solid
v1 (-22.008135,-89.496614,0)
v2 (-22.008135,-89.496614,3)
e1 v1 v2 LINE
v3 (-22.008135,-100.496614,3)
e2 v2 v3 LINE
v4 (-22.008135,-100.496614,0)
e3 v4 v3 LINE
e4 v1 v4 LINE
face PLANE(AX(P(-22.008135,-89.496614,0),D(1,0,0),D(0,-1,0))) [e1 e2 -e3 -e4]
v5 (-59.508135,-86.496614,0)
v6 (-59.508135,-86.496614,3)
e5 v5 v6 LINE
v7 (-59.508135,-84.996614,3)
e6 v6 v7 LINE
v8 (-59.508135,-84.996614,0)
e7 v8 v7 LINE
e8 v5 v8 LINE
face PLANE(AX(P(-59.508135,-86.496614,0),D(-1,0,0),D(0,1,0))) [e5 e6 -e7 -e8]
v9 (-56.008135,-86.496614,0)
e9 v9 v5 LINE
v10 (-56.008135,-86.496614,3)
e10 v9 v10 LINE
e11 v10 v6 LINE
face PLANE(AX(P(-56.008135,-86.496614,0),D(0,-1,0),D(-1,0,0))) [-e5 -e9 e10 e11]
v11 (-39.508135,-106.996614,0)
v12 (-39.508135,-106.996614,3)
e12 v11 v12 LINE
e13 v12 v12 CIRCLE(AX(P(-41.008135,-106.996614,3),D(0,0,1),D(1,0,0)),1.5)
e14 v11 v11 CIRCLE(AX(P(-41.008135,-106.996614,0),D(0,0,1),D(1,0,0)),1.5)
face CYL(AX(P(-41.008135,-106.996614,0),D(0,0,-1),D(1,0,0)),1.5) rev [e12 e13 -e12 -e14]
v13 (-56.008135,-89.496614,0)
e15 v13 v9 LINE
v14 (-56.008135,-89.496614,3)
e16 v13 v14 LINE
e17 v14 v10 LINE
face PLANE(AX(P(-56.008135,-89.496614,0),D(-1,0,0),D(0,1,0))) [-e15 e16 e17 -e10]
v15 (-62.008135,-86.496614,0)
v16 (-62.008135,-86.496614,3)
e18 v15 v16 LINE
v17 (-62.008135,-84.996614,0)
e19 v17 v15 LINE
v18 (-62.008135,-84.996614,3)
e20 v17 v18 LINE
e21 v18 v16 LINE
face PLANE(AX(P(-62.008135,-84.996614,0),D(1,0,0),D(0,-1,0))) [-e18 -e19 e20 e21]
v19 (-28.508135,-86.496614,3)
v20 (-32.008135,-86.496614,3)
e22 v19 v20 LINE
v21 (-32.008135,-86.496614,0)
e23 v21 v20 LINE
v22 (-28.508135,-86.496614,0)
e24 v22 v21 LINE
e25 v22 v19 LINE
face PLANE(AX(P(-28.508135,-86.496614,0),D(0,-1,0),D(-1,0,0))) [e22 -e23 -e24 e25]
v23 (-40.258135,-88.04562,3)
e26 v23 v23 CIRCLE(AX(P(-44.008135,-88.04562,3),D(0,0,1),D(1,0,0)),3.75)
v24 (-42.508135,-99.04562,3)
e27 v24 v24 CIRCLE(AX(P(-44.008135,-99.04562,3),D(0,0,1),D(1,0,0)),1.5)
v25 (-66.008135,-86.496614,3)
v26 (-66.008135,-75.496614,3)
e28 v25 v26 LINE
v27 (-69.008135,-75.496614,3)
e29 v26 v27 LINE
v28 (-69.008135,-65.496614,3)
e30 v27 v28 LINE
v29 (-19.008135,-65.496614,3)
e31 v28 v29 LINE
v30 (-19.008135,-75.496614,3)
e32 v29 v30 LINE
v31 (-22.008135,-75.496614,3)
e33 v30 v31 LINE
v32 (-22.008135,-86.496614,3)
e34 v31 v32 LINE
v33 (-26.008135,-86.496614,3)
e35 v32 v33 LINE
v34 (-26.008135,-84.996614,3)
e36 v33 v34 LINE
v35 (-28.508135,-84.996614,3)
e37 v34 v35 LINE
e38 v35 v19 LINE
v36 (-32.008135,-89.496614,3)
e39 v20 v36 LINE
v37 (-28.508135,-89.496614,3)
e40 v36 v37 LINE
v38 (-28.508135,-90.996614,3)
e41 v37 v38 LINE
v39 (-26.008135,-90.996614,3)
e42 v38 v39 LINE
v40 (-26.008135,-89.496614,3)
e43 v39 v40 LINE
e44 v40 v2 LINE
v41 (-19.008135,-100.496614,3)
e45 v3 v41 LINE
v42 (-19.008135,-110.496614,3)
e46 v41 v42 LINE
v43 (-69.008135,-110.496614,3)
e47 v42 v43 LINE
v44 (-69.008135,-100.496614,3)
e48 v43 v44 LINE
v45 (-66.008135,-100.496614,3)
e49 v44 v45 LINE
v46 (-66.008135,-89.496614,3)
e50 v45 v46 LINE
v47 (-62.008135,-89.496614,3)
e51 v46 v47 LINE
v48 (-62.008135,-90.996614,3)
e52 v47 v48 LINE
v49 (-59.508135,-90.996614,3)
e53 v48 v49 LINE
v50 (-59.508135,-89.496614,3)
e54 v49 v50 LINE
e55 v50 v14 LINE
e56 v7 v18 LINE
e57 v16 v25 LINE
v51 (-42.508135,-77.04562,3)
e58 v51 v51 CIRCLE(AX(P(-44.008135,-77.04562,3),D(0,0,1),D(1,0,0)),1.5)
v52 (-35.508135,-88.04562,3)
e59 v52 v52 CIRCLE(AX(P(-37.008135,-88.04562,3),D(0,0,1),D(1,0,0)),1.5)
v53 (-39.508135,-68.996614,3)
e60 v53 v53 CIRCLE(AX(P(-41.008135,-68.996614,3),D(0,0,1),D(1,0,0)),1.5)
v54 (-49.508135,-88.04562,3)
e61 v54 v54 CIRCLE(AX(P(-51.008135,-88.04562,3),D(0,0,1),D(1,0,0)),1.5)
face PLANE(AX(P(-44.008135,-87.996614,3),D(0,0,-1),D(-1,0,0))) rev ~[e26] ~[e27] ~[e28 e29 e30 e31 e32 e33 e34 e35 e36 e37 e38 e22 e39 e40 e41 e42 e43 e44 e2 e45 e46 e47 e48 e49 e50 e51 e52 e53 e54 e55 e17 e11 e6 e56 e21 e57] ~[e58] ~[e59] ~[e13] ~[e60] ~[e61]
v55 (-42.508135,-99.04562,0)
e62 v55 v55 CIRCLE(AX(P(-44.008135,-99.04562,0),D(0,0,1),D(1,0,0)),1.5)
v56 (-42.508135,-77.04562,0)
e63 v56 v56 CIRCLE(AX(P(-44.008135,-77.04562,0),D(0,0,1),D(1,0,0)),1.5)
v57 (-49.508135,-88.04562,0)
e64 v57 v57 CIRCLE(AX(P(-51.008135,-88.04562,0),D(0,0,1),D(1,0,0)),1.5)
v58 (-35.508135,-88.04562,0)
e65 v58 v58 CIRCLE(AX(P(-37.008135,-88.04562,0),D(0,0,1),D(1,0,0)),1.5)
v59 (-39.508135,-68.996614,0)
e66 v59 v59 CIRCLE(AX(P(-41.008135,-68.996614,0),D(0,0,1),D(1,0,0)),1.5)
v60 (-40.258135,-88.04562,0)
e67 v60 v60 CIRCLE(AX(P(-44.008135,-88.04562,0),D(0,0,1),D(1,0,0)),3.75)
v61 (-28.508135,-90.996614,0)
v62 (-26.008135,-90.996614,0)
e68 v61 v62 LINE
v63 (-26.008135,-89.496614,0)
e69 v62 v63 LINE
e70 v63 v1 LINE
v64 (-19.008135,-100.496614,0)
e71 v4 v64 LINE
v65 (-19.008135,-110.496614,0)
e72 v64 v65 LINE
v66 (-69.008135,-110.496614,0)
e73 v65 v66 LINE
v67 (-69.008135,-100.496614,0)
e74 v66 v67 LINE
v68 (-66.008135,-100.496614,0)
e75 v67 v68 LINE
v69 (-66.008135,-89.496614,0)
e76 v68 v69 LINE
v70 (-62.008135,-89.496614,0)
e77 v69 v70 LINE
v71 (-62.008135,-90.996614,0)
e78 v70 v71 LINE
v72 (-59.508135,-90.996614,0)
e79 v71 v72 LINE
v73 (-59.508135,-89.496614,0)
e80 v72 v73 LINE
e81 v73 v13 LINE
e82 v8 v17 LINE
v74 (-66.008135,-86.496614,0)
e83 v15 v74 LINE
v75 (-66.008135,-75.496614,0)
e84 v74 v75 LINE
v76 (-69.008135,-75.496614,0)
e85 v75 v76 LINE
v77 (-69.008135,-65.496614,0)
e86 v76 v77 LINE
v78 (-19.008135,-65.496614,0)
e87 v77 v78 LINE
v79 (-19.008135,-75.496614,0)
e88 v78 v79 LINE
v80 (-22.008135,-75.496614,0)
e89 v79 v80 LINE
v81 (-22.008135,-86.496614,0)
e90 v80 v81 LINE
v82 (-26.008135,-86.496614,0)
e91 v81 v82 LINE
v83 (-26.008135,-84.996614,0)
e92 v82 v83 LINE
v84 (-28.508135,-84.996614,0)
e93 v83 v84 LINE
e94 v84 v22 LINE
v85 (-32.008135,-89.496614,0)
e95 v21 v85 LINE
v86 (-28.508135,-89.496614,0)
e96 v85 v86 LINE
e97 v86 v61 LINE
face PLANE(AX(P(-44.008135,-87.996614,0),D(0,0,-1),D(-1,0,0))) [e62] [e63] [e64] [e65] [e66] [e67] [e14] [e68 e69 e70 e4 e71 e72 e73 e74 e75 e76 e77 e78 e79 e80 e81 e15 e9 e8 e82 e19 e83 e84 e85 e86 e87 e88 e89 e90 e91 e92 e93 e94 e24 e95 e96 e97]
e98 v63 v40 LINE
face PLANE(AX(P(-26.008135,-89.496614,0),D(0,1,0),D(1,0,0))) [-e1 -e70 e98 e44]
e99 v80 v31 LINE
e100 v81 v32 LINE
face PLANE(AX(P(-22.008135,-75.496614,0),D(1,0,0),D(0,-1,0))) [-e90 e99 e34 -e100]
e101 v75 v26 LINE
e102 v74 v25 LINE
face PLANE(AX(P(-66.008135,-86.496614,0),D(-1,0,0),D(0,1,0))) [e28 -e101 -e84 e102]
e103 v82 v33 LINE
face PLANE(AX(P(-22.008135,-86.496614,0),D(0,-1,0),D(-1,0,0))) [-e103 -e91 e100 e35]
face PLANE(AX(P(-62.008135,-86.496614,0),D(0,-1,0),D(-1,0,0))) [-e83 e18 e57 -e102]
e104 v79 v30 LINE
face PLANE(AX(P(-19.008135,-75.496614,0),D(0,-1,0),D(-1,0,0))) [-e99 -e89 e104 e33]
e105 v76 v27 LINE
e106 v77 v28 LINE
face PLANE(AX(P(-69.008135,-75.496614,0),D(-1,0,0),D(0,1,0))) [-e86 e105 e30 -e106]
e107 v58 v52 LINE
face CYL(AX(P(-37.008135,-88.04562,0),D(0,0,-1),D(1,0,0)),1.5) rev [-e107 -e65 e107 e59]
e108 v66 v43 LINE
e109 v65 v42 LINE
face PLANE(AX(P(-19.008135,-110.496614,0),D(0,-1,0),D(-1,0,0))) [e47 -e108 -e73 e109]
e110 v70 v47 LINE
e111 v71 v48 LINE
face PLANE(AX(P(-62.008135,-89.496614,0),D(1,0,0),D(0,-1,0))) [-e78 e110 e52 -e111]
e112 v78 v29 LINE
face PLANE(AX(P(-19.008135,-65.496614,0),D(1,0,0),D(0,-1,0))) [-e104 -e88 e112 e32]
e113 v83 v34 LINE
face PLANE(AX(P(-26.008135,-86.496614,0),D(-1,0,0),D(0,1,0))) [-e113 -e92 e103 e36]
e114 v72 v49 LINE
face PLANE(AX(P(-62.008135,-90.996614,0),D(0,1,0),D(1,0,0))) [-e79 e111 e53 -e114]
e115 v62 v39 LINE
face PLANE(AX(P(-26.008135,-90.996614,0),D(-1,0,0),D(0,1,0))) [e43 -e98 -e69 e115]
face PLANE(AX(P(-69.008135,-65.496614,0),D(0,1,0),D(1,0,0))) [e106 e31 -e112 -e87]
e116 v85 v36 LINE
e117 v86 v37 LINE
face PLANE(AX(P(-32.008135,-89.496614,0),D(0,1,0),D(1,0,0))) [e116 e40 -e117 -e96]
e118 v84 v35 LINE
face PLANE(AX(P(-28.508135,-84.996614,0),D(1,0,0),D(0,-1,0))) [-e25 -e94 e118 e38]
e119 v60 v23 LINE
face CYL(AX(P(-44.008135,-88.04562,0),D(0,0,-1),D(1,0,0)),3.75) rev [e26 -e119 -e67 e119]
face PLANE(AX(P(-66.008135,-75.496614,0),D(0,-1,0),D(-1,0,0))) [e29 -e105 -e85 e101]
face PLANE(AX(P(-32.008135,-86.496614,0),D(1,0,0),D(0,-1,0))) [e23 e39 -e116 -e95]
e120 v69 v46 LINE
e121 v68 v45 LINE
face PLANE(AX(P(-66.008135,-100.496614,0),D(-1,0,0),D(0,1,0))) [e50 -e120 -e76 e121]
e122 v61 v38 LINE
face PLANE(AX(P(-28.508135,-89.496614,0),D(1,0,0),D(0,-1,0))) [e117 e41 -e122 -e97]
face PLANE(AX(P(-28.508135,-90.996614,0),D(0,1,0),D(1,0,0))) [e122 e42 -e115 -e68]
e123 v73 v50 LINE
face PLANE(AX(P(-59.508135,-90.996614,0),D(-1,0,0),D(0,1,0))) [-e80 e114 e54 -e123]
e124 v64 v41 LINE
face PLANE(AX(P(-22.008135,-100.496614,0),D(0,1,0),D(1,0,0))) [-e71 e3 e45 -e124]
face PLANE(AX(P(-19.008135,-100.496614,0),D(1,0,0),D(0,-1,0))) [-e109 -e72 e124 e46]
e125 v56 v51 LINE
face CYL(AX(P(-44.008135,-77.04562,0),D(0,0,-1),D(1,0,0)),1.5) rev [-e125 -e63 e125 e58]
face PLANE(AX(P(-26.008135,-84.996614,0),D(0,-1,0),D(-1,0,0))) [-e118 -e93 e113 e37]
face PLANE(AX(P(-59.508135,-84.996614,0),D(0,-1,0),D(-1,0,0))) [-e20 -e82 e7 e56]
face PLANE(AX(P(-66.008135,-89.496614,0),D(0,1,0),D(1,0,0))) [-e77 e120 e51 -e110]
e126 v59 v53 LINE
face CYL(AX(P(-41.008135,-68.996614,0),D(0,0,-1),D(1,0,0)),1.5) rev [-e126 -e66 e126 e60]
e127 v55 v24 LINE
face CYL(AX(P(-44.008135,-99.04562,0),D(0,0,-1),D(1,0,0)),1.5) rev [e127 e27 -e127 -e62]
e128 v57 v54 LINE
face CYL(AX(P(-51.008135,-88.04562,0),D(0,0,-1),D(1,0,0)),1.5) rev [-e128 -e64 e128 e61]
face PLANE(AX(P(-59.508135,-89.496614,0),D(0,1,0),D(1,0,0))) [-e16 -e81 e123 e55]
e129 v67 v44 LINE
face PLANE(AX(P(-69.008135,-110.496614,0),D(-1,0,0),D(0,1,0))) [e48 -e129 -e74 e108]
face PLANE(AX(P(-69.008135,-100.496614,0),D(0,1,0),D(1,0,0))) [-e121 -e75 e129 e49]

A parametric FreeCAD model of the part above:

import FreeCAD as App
import Part
import Sketcher

V = App.Vector

doc = App.newDocument("Part")
body = doc.addObject("PartDesign::Body", "Body")

sketch1 = body.newObject("Sketcher::SketchObject", "Sketch")
sketch1.AttachmentSupport = (doc.getObject("XY_Plane"), [""])
sketch1.MapMode = "FlatFace"
sketch1.addGeometry([
    Part.LineSegment(V(-66.008135, -75.496614, 0), V(-66.008135, -86.496614, 0)),
    Part.LineSegment(V(-66.008135, -86.496614, 0), V(-62.008135, -86.496614, 0)),
    Part.LineSegment(V(-62.008135, -86.496614, 0), V(-62.008135, -84.996614, 0)),
    Part.LineSegment(V(-62.008135, -84.996614, 0), V(-59.508135, -84.996614, 0)),
    Part.LineSegment(V(-59.508135, -84.996614, 0), V(-59.508135, -86.496614, 0)),
    Part.LineSegment(V(-59.508135, -86.496614, 0), V(-56.008135, -86.496614, 0)),
    Part.LineSegment(V(-56.008135, -86.496614, 0), V(-56.008135, -89.496614, 0)),
    Part.LineSegment(V(-56.008135, -89.496614, 0), V(-59.508135, -89.496614, 0)),
    Part.LineSegment(V(-59.508135, -89.496614, 0), V(-59.508135, -90.996614, 0)),
    Part.LineSegment(V(-59.508135, -90.996614, 0), V(-62.008135, -90.996614, 0)),
    Part.LineSegment(V(-62.008135, -90.996614, 0), V(-62.008135, -89.496614, 0)),
    Part.LineSegment(V(-62.008135, -89.496614, 0), V(-66.008135, -89.496614, 0)),
    Part.LineSegment(V(-66.008135, -89.496614, 0), V(-66.008135, -100.496614, 0)),
    Part.LineSegment(V(-66.008135, -100.496614, 0), V(-69.008135, -100.496614, 0)),
    Part.LineSegment(V(-69.008135, -100.496614, 0), V(-69.008135, -110.496614, 0)),
    Part.LineSegment(V(-69.008135, -110.496614, 0), V(-19.008135, -110.496614, 0)),
    Part.LineSegment(V(-19.008135, -110.496614, 0), V(-19.008135, -100.496614, 0)),
    Part.LineSegment(V(-19.008135, -100.496614, 0), V(-22.008135, -100.496614, 0)),
    Part.LineSegment(V(-22.008135, -100.496614, 0), V(-22.008135, -89.496614, 0)),
    Part.LineSegment(V(-22.008135, -89.496614, 0), V(-26.008135, -89.496614, 0)),
    Part.LineSegment(V(-26.008135, -89.496614, 0), V(-26.008135, -90.996614, 0)),
    Part.LineSegment(V(-26.008135, -90.996614, 0), V(-28.508135, -90.996614, 0)),
    Part.LineSegment(V(-28.508135, -90.996614, 0), V(-28.508135, -89.496614, 0)),
    Part.LineSegment(V(-28.508135, -89.496614, 0), V(-32.008135, -89.496614, 0)),
    Part.LineSegment(V(-32.008135, -89.496614, 0), V(-32.008135, -86.496614, 0)),
    Part.LineSegment(V(-32.008135, -86.496614, 0), V(-28.508135, -86.496614, 0)),
    Part.LineSegment(V(-28.508135, -86.496614, 0), V(-28.508135, -84.996614, 0)),
    Part.LineSegment(V(-28.508135, -84.996614, 0), V(-26.008135, -84.996614, 0)),
    Part.LineSegment(V(-26.008135, -84.996614, 0), V(-26.008135, -86.496614, 0)),
    Part.LineSegment(V(-26.008135, -86.496614, 0), V(-22.008135, -86.496614, 0)),
    Part.LineSegment(V(-22.008135, -86.496614, 0), V(-22.008135, -75.496614, 0)),
    Part.LineSegment(V(-22.008135, -75.496614, 0), V(-19.008135, -75.496614, 0)),
    Part.LineSegment(V(-19.008135, -75.496614, 0), V(-19.008135, -65.496614, 0)),
    Part.LineSegment(V(-19.008135, -65.496614, 0), V(-69.008135, -65.496614, 0)),
    Part.LineSegment(V(-69.008135, -65.496614, 0), V(-69.008135, -75.496614, 0)),
    Part.LineSegment(V(-69.008135, -75.496614, 0), V(-66.008135, -75.496614, 0)),
    Part.Circle(V(-41.008135, -106.996614, 0), V(0, 0, 1), 1.5),
    Part.Circle(V(-37.008135, -88.04562, 0), V(0, 0, 1), 1.5),
    Part.Circle(V(-44.008135, -99.04562, 0), V(0, 0, 1), 1.5),
    Part.Circle(V(-44.008135, -88.04562, 0), V(0, 0, 1), 3.75),
    Part.Circle(V(-51.008135, -88.04562, 0), V(0, 0, 1), 1.5),
    Part.Circle(V(-41.008135, -68.996614, 0), V(0, 0, 1), 1.5),
    Part.Circle(V(-44.008135, -77.04562, 0), V(0, 0, 1), 1.5),
], False)
sketch1.addConstraint([
    Sketcher.Constraint("Coincident", 0, 2, 1, 1),
    Sketcher.Constraint("Coincident", 1, 2, 2, 1),
    Sketcher.Constraint("Coincident", 2, 2, 3, 1),
    Sketcher.Constraint("Coincident", 3, 2, 4, 1),
    Sketcher.Constraint("Coincident", 4, 2, 5, 1),
    Sketcher.Constraint("Coincident", 5, 2, 6, 1),
    Sketcher.Constraint("Coincident", 6, 2, 7, 1),
    Sketcher.Constraint("Coincident", 7, 2, 8, 1),
    Sketcher.Constraint("Coincident", 8, 2, 9, 1),
    Sketcher.Constraint("Coincident", 9, 2, 10, 1),
    Sketcher.Constraint("Coincident", 10, 2, 11, 1),
    Sketcher.Constraint("Coincident", 11, 2, 12, 1),
    Sketcher.Constraint("Coincident", 12, 2, 13, 1),
    Sketcher.Constraint("Coincident", 13, 2, 14, 1),
    Sketcher.Constraint("Coincident", 14, 2, 15, 1),
    Sketcher.Constraint("Coincident", 15, 2, 16, 1),
    Sketcher.Constraint("Coincident", 16, 2, 17, 1),
    Sketcher.Constraint("Coincident", 17, 2, 18, 1),
    Sketcher.Constraint("Coincident", 18, 2, 19, 1),
    Sketcher.Constraint("Coincident", 19, 2, 20, 1),
    Sketcher.Constraint("Coincident", 20, 2, 21, 1),
    Sketcher.Constraint("Coincident", 21, 2, 22, 1),
    Sketcher.Constraint("Coincident", 22, 2, 23, 1),
    Sketcher.Constraint("Coincident", 23, 2, 24, 1),
    Sketcher.Constraint("Coincident", 24, 2, 25, 1),
    Sketcher.Constraint("Coincident", 25, 2, 26, 1),
    Sketcher.Constraint("Coincident", 26, 2, 27, 1),
    Sketcher.Constraint("Coincident", 27, 2, 28, 1),
    Sketcher.Constraint("Coincident", 28, 2, 29, 1),
    Sketcher.Constraint("Coincident", 29, 2, 30, 1),
    Sketcher.Constraint("Coincident", 30, 2, 31, 1),
    Sketcher.Constraint("Coincident", 31, 2, 32, 1),
    Sketcher.Constraint("Coincident", 32, 2, 33, 1),
    Sketcher.Constraint("Coincident", 33, 2, 34, 1),
    Sketcher.Constraint("Coincident", 34, 2, 35, 1),
    Sketcher.Constraint("Coincident", 35, 2, 0, 1),
    Sketcher.Constraint("Vertical", 0),
    Sketcher.Constraint("Horizontal", 1),
    Sketcher.Constraint("Vertical", 2),
    Sketcher.Constraint("Horizontal", 3),
    Sketcher.Constraint("Vertical", 4),
    Sketcher.Constraint("Horizontal", 5),
    Sketcher.Constraint("Vertical", 6),
    Sketcher.Constraint("Horizontal", 7),
    Sketcher.Constraint("Vertical", 8),
    Sketcher.Constraint("Horizontal", 9),
    Sketcher.Constraint("Vertical", 10),
    Sketcher.Constraint("Horizontal", 11),
    Sketcher.Constraint("Vertical", 12),
    Sketcher.Constraint("Horizontal", 13),
    Sketcher.Constraint("Vertical", 14),
    Sketcher.Constraint("Horizontal", 15),
    Sketcher.Constraint("Vertical", 16),
    Sketcher.Constraint("Horizontal", 17),
    Sketcher.Constraint("Vertical", 18),
    Sketcher.Constraint("Horizontal", 19),
    Sketcher.Constraint("Vertical", 20),
    Sketcher.Constraint("Horizontal", 21),
    Sketcher.Constraint("Vertical", 22),
    Sketcher.Constraint("Horizontal", 23),
    Sketcher.Constraint("Vertical", 24),
    Sketcher.Constraint("Horizontal", 25),
    Sketcher.Constraint("Vertical", 26),
    Sketcher.Constraint("Horizontal", 27),
    Sketcher.Constraint("Vertical", 28),
    Sketcher.Constraint("Horizontal", 29),
    Sketcher.Constraint("Vertical", 30),
    Sketcher.Constraint("Horizontal", 31),
    Sketcher.Constraint("Vertical", 32),
    Sketcher.Constraint("Horizontal", 33),
    Sketcher.Constraint("Vertical", 34),
    Sketcher.Constraint("Horizontal", 35),
    Sketcher.Constraint("Equal", 36, 37),
    Sketcher.Constraint("Equal", 37, 38),
    Sketcher.Constraint("Equal", 38, 40),
    Sketcher.Constraint("Equal", 40, 41),
    Sketcher.Constraint("Equal", 41, 42),
    Sketcher.Constraint("Horizontal", 37, 3, 39, 3),
    Sketcher.Constraint("Horizontal", 39, 3, 40, 3),
    Sketcher.Constraint("Horizontal", 1, 2, 4, 2),
    Sketcher.Constraint("Horizontal", 7, 2, 10, 2),
    Sketcher.Constraint("Horizontal", 13, 2, 16, 2),
    Sketcher.Constraint("Horizontal", 11, 2, 18, 2),
    Sketcher.Constraint("Horizontal", 9, 2, 20, 2),
    Sketcher.Constraint("Horizontal", 19, 2, 22, 2),
    Sketcher.Constraint("Horizontal", 5, 2, 24, 2),
    Sketcher.Constraint("Horizontal", 3, 2, 26, 2),
    Sketcher.Constraint("Horizontal", 25, 2, 28, 2),
    Sketcher.Constraint("Horizontal", 31, 2, 34, 2),
    Sketcher.Constraint("Vertical", 38, 3, 39, 3),
    Sketcher.Constraint("Vertical", 36, 3, 41, 3),
    Sketcher.Constraint("Vertical", 39, 3, 42, 3),
    Sketcher.Constraint("Vertical", 4, 2, 7, 2),
    Sketcher.Constraint("Vertical", 2, 2, 9, 2),
    Sketcher.Constraint("Vertical", 0, 2, 11, 2),
    Sketcher.Constraint("Vertical", 22, 2, 25, 2),
    Sketcher.Constraint("Vertical", 20, 2, 27, 2),
    Sketcher.Constraint("Vertical", 18, 2, 29, 2),
    Sketcher.Constraint("Vertical", 16, 2, 31, 2),
    Sketcher.Constraint("Vertical", 14, 2, 33, 2),
    Sketcher.Constraint("Equal", 13, 17),
    Sketcher.Constraint("Equal", 11, 19),
    Sketcher.Constraint("Equal", 9, 21),
    Sketcher.Constraint("Equal", 7, 23),
    Sketcher.Constraint("Equal", 35, 6),
    Sketcher.Constraint("Equal", 4, 8),
    Sketcher.Constraint("Equal", 0, 12),
    Sketcher.Constraint("Equal", 16, 32),
    Sketcher.Constraint("Diameter", 36, 3.0),
    Sketcher.Constraint("Diameter", 39, 7.5),
    Sketcher.Constraint("DistanceX", 1, 1, 1, 2, 4.0),
    Sketcher.Constraint("DistanceX", 13, 2, 13, 1, 3.0),
    Sketcher.Constraint("DistanceX", 15, 1, 15, 2, 50.0),
    Sketcher.Constraint("DistanceY", 0, 2, 0, 1, 11.0),
    Sketcher.Constraint("DistanceY", 14, 2, 14, 1, 10.0),
    Sketcher.Constraint("DistanceX", 3, 1, 3, 2, 2.5),
    Sketcher.Constraint("DistanceX", 5, 1, 5, 2, 3.5),
    Sketcher.Constraint("DistanceY", 2, 1, 2, 2, 1.5),
    Sketcher.Constraint("DistanceX", 36, 3, 37, 3, 4.0),
    Sketcher.Constraint("DistanceX", 38, 3, 36, 3, 3.0),
    Sketcher.Constraint("DistanceY", 38, 3, 37, 3, 11.0),
    Sketcher.Constraint("DistanceX", 40, 3, 39, 3, 7.0),
    Sketcher.Constraint("DistanceY", 36, 3, 41, 3, 38.0),
    Sketcher.Constraint("DistanceY", 39, 3, 42, 3, 11.0),
    Sketcher.Constraint("DistanceX", 0, 2, 40, 3, 15.0),
    Sketcher.Constraint("DistanceY", 15, 2, 36, 3, 3.5),
    Sketcher.Constraint("DistanceY", 37, 3, -1, 1, 88.04562),
    Sketcher.Constraint("DistanceX", 36, 3, -1, 1, 41.008135),
    Sketcher.Constraint("DistanceY", 36, 3, -1, 1, 106.996614),
])
pad1 = body.newObject("PartDesign::Pad", "Pad")
pad1.Profile = sketch1
pad1.Length = 3

doc.recompute()
